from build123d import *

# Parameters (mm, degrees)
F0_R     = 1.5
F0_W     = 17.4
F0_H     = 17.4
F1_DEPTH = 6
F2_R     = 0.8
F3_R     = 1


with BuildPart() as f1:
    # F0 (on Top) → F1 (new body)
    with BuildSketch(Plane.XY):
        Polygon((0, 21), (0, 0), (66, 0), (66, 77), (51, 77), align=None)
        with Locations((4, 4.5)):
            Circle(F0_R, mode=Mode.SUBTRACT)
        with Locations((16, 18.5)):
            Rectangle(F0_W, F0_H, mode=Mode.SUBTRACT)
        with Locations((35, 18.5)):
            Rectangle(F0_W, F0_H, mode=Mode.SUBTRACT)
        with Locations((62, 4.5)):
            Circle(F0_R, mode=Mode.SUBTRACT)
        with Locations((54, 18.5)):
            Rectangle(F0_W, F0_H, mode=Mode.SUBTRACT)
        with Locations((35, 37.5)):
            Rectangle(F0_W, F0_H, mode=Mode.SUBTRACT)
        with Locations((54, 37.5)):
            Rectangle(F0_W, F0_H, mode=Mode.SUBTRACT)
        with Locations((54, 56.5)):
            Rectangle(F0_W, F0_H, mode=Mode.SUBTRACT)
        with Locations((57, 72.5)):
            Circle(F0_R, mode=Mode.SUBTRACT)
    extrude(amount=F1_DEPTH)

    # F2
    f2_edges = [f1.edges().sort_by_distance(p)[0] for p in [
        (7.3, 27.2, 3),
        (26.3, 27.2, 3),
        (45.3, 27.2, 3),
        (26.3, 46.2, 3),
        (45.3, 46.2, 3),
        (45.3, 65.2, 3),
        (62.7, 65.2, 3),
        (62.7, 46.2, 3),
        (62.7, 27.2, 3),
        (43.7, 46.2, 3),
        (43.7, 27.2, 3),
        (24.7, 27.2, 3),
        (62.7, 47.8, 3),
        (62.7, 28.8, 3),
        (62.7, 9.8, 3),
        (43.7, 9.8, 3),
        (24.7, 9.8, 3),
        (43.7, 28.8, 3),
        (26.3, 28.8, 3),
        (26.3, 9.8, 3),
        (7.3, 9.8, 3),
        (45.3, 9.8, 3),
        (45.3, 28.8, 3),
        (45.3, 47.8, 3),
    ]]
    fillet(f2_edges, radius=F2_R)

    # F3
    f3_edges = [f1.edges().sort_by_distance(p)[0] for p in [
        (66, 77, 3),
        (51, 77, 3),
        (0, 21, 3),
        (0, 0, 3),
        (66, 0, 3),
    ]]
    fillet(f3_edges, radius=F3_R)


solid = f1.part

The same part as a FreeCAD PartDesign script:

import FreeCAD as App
import Part
import Sketcher
Q = App.Units.Quantity


def edges_at(feature, points):
    """Names of the edges that pass closest to the given points."""
    edges = feature.Shape.Edges
    near = lambda p: min(range(len(edges)), key=lambda i: edges[i].distToShape(Part.Vertex(*p))[0])
    return sorted({f"Edge{near(p) + 1}" for p in points})


def add_polygon(sketch, points):
    """Adds a closed chain of lines whose ends are joined by coincident constraints."""
    first, n = sketch.GeometryCount, len(points)
    for a, b in zip(points, points[1:] + points[:1]):
        sketch.addGeometry(Part.LineSegment(App.Vector(*a, 0), App.Vector(*b, 0)), False)
    for i in range(n):
        sketch.addConstraint(Sketcher.Constraint("Coincident", first + i, 2, first + (i + 1) % n, 1))

doc = App.newDocument("Part")
params = doc.addObject("Spreadsheet::Sheet", "Params")
for row, (alias, value) in enumerate([
    ("sketch1_diameter", "3 mm"),
    ("sketch1_width", "66 mm"),
    ("sketch1_width2", "15 mm"),
    ("sketch1_height", "21 mm"),
    ("sketch1_height2", "77 mm"),
    ("pad1_length", "6 mm"),
    ("fillet_radius", "0.8 mm"),
    ("fillet2_radius", "1 mm"),
], start=1):
    params.set(f"A{row}", alias)
    params.set(f"B{row}", "=" + value)
    params.setAlias(f"B{row}", alias)

body = doc.addObject("PartDesign::Body", "Body")

# Sketch on XY plane
sketch1 = body.newObject("Sketcher::SketchObject", "Sketch")
sketch1.AttachmentSupport = (doc.getObject("XY_Plane"), [""])
sketch1.MapMode = "FlatFace"
add_polygon(sketch1, [(0, 21), (0, 0), (66, 0), (66, 77), (51, 77)])  # lines 0-4
sketch1.addGeometry(Part.Circle(App.Vector(4, 4.5, 0), App.Vector(0, 0, 1), 1.5), False)  # 5
add_polygon(sketch1, [(24.7, 9.8), (7.3, 9.8), (7.3, 27.2), (24.7, 27.2)])  # lines 6-9
add_polygon(sketch1, [(43.7, 9.8), (26.3, 9.8), (26.3, 27.2), (43.7, 27.2)])  # lines 10-13
sketch1.addGeometry(Part.Circle(App.Vector(62, 4.5, 0), App.Vector(0, 0, 1), 1.5), False)  # 14
add_polygon(sketch1, [(62.7, 9.8), (45.3, 9.8), (45.3, 27.2), (62.7, 27.2)])  # lines 15-18
add_polygon(sketch1, [(43.7, 28.8), (26.3, 28.8), (26.3, 46.2), (43.7, 46.2)])  # lines 19-22
add_polygon(sketch1, [(62.7, 28.8), (45.3, 28.8), (45.3, 46.2), (62.7, 46.2)])  # lines 23-26
add_polygon(sketch1, [(62.7, 47.8), (45.3, 47.8), (45.3, 65.2), (62.7, 65.2)])  # lines 27-30
sketch1.addGeometry(Part.Circle(App.Vector(57, 72.5, 0), App.Vector(0, 0, 1), 1.5), False)  # 31
sketch1.addConstraint(Sketcher.Constraint("Vertical", 0))
sketch1.addConstraint(Sketcher.Constraint("Horizontal", 1))
sketch1.addConstraint(Sketcher.Constraint("Vertical", 2))
sketch1.addConstraint(Sketcher.Constraint("Horizontal", 3))
sketch1.addConstraint(Sketcher.Constraint("Horizontal", 6))
sketch1.addConstraint(Sketcher.Constraint("Vertical", 7))
sketch1.addConstraint(Sketcher.Constraint("Horizontal", 8))
sketch1.addConstraint(Sketcher.Constraint("Vertical", 9))
sketch1.addConstraint(Sketcher.Constraint("Horizontal", 10))
sketch1.addConstraint(Sketcher.Constraint("Vertical", 11))
sketch1.addConstraint(Sketcher.Constraint("Horizontal", 12))
sketch1.addConstraint(Sketcher.Constraint("Vertical", 13))
sketch1.addConstraint(Sketcher.Constraint("Horizontal", 15))
sketch1.addConstraint(Sketcher.Constraint("Vertical", 16))
sketch1.addConstraint(Sketcher.Constraint("Horizontal", 17))
sketch1.addConstraint(Sketcher.Constraint("Vertical", 18))
sketch1.addConstraint(Sketcher.Constraint("Horizontal", 19))
sketch1.addConstraint(Sketcher.Constraint("Vertical", 20))
sketch1.addConstraint(Sketcher.Constraint("Horizontal", 21))
sketch1.addConstraint(Sketcher.Constraint("Vertical", 22))
sketch1.addConstraint(Sketcher.Constraint("Horizontal", 23))
sketch1.addConstraint(Sketcher.Constraint("Vertical", 24))
sketch1.addConstraint(Sketcher.Constraint("Horizontal", 25))
sketch1.addConstraint(Sketcher.Constraint("Vertical", 26))
sketch1.addConstraint(Sketcher.Constraint("Horizontal", 27))
sketch1.addConstraint(Sketcher.Constraint("Vertical", 28))
sketch1.addConstraint(Sketcher.Constraint("Horizontal", 29))
sketch1.addConstraint(Sketcher.Constraint("Vertical", 30))
sketch1.addConstraint(Sketcher.Constraint("Coincident", 0, 2, -1, 1))
sketch1.addConstraint(Sketcher.Constraint("Equal", 5, 14))
sketch1.addConstraint(Sketcher.Constraint("Equal", 14, 31))
sketch1.addConstraint(Sketcher.Constraint("Horizontal", 5, 3, 14, 3))
sketch1.addConstraint(Sketcher.Constraint("Horizontal", 9, 2, 10, 2))
sketch1.addConstraint(Sketcher.Constraint("Horizontal", 8, 2, 11, 2))
sketch1.addConstraint(Sketcher.Constraint("Horizontal", 13, 2, 15, 2))
sketch1.addConstraint(Sketcher.Constraint("Horizontal", 12, 2, 16, 2))
sketch1.addConstraint(Sketcher.Constraint("Horizontal", 22, 2, 23, 2))
sketch1.addConstraint(Sketcher.Constraint("Horizontal", 21, 2, 24, 2))
sketch1.addConstraint(Sketcher.Constraint("Vertical", 11, 2, 19, 2))
sketch1.addConstraint(Sketcher.Constraint("Vertical", 13, 2, 21, 2))
sketch1.addConstraint(Sketcher.Constraint("Vertical", 16, 2, 23, 2))
sketch1.addConstraint(Sketcher.Constraint("Vertical", 18, 2, 25, 2))
sketch1.addConstraint(Sketcher.Constraint("Vertical", 24, 2, 27, 2))
sketch1.addConstraint(Sketcher.Constraint("Vertical", 26, 2, 29, 2))
sketch1.addConstraint(Sketcher.Constraint("Equal", 8, 10))
sketch1.addConstraint(Sketcher.Constraint("Equal", 12, 15))
sketch1.addConstraint(Sketcher.Constraint("Equal", 29, 7))
sketch1.addConstraint(Sketcher.Constraint("Equal", 18, 20))
sketch1.addConstraint(Sketcher.Constraint("Equal", 26, 28))
sketch1.addConstraint(Sketcher.Constraint("Diameter", 5, Q("3 mm")))
sketch1.addConstraint(Sketcher.Constraint("DistanceX", 1, 1, 1, 2, Q("66 mm")))
sketch1.addConstraint(Sketcher.Constraint("DistanceX", 3, 2, 3, 1, Q("15 mm")))
sketch1.addConstraint(Sketcher.Constraint("DistanceY", 0, 2, 0, 1, Q("21 mm")))
sketch1.addConstraint(Sketcher.Constraint("DistanceY", 2, 1, 2, 2, Q("77 mm")))
sketch1.addConstraint(Sketcher.Constraint("DistanceX", 6, 2, 6, 1, Q("17.4 mm")))
sketch1.addConstraint(Sketcher.Constraint("DistanceX", -1, 1, 5, 3, Q("4 mm")))
sketch1.addConstraint(Sketcher.Constraint("DistanceX", -1, 1, 14, 3, Q("62 mm")))
sketch1.addConstraint(Sketcher.Constraint("DistanceX", -1, 1, 31, 3, Q("57 mm")))
sketch1.addConstraint(Sketcher.Constraint("DistanceY", 14, 3, 31, 3, Q("68 mm")))
sketch1.addConstraint(Sketcher.Constraint("DistanceX", 6, 2, 10, 2, Q("19 mm")))
sketch1.addConstraint(Sketcher.Constraint("DistanceX", 10, 2, 15, 2, Q("19 mm")))
sketch1.addConstraint(Sketcher.Constraint("DistanceY", 10, 2, 19, 2, Q("19 mm")))
sketch1.addConstraint(Sketcher.Constraint("DistanceY", 23, 2, 27, 2, Q("19 mm")))
sketch1.addConstraint(Sketcher.Constraint("DistanceY", -1, 1, 5, 3, Q("4.5 mm")))
sketch1.addConstraint(Sketcher.Constraint("DistanceX", -1, 1, 6, 2, Q("7.3 mm")))
sketch1.addConstraint(Sketcher.Constraint("DistanceY", -1, 1, 6, 2, Q("9.8 mm")))
sketch1.setExpression("Constraints[78]", "Params.sketch1_diameter")
sketch1.setExpression("Constraints[79]", "Params.sketch1_width")
sketch1.setExpression("Constraints[80]", "Params.sketch1_width2")
sketch1.setExpression("Constraints[81]", "Params.sketch1_height")
sketch1.setExpression("Constraints[82]", "Params.sketch1_height2")
pad1 = body.newObject("PartDesign::Pad", "Pad")
pad1.Profile = sketch1
pad1.setExpression("Length", "Params.pad1_length")
doc.recompute()

fillet = body.newObject("PartDesign::Fillet", "Fillet")
fillet.Base = (pad1, edges_at(pad1, [
    (7.3, 27.2, 3),
    (26.3, 27.2, 3),
    (45.3, 27.2, 3),
    (26.3, 46.2, 3),
    (45.3, 46.2, 3),
    (45.3, 65.2, 3),
    (62.7, 65.2, 3),
    (62.7, 46.2, 3),
    (62.7, 27.2, 3),
    (43.7, 46.2, 3),
    (43.7, 27.2, 3),
    (24.7, 27.2, 3),
    (62.7, 47.8, 3),
    (62.7, 28.8, 3),
    (62.7, 9.8, 3),
    (43.7, 9.8, 3),
    (24.7, 9.8, 3),
    (43.7, 28.8, 3),
    (26.3, 28.8, 3),
    (26.3, 9.8, 3),
    (7.3, 9.8, 3),
    (45.3, 9.8, 3),
    (45.3, 28.8, 3),
    (45.3, 47.8, 3),
]))
fillet.setExpression("Radius", "Params.fillet_radius")
doc.recompute()

fillet2 = body.newObject("PartDesign::Fillet", "Fillet001")
fillet2.Base = (fillet, edges_at(fillet, [
    (66, 77, 3),
    (51, 77, 3),
    (0, 21, 3),
    (0, 0, 3),
    (66, 0, 3),
]))
fillet2.setExpression("Radius", "Params.fillet2_radius")

doc.recompute()
